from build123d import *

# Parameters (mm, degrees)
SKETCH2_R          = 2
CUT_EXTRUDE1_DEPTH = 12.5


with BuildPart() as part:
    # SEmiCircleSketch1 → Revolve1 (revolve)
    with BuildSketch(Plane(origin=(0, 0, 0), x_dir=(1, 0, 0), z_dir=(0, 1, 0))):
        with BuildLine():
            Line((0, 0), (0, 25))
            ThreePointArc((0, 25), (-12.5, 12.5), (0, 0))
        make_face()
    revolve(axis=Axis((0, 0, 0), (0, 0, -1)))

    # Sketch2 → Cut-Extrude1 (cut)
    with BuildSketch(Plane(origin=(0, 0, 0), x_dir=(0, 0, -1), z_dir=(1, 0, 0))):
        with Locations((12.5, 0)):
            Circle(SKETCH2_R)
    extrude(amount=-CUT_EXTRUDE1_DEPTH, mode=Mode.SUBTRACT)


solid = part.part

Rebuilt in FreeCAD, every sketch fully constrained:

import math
import FreeCAD as App
import Part
import Sketcher

V = App.Vector

doc = App.newDocument("Part")
body = doc.addObject("PartDesign::Body", "Body")

sketch1 = body.newObject("Sketcher::SketchObject", "Sketch")
sketch1.AttachmentSupport = (doc.getObject("XZ_Plane"), [""])
sketch1.MapMode = "FlatFace"
sketch1.addGeometry(Part.LineSegment(V(0, 0, 0), V(0, -25, 0)), False)
sketch1.addGeometry(Part.ArcOfCircle(Part.Circle(V(0, -12, 0), V(0, 0, 1), 12), math.radians(90), math.radians(270)), False)
sketch1.addConstraint(Sketcher.Constraint("Coincident", 0, 1, 1, 1))
sketch1.addConstraint(Sketcher.Constraint("Coincident", 1, 2, 0, 2))
sketch1.addConstraint(Sketcher.Constraint("Vertical", 0))
sketch1.addConstraint(Sketcher.Constraint("Coincident", 0, 1, -1, 1))
sketch1.addConstraint(Sketcher.Constraint("PointOnObject", 1, 3, -2))
sketch1.addConstraint(Sketcher.Constraint("Radius", 1, 12.5))
revolution = body.newObject("PartDesign::Revolution", "Revolution")
revolution.Profile = sketch1
revolution.ReferenceAxis = (sketch1, ["V_Axis"])
revolution.Angle = 360

sketch2 = body.newObject("Sketcher::SketchObject", "Sketch001")
sketch2.AttachmentSupport = (doc.getObject("YZ_Plane"), [""])
sketch2.MapMode = "FlatFace"
sketch2.addGeometry(Part.Circle(V(0, -12.5, 0), V(0, 0, 1), 2), False)
sketch2.addConstraint(Sketcher.Constraint("PointOnObject", 0, 3, -2))
sketch2.addConstraint(Sketcher.Constraint("Diameter", 0, 4.0))
sketch2.addConstraint(Sketcher.Constraint("DistanceY", 0, 3, -1, 1, 12.5))
pocket1 = body.newObject("PartDesign::Pocket", "Pocket")
pocket1.Profile = sketch2
pocket1.Length = 12.5

doc.recompute()
